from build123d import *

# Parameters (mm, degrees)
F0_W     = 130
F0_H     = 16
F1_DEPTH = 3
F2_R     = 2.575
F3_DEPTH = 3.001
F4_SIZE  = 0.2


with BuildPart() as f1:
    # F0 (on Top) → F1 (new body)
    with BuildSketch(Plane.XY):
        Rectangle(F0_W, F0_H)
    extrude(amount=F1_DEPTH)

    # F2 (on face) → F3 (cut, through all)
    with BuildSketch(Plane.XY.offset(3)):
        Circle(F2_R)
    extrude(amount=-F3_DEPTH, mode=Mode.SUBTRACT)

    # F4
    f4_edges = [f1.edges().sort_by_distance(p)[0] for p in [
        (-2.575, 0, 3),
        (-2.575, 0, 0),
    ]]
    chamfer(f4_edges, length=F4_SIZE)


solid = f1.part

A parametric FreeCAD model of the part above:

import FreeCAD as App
import Part
import Sketcher


def edges_at(feature, points):
    """Names of the edges that pass closest to the given points."""
    edges = feature.Shape.Edges
    near = lambda p: min(range(len(edges)), key=lambda i: edges[i].distToShape(Part.Vertex(*p))[0])
    return sorted({f"Edge{near(p) + 1}" for p in points})

doc = App.newDocument("Part")
body = doc.addObject("PartDesign::Body", "Body")

# Sketch on XY plane
sketch1 = doc.addObject("Sketcher::SketchObject", "Sketch")
body.addObject(sketch1)
sketch1.AttachmentSupport = (doc.XY_Plane, [""])
sketch1.MapMode = "FlatFace"
sketch1.addGeometry(Part.LineSegment(App.Vector(-65, 8, 0), App.Vector(-65, -8, 0)), False)
sketch1.addGeometry(Part.LineSegment(App.Vector(-65, -8, 0), App.Vector(65, -8, 0)), False)
sketch1.addGeometry(Part.LineSegment(App.Vector(65, -8, 0), App.Vector(65, 8, 0)), False)
sketch1.addGeometry(Part.LineSegment(App.Vector(65, 8, 0), App.Vector(-65, 8, 0)), False)
sketch1.addConstraint(Sketcher.Constraint("Coincident", 0, 2, 1, 1))
sketch1.addConstraint(Sketcher.Constraint("Coincident", 1, 2, 2, 1))
sketch1.addConstraint(Sketcher.Constraint("Coincident", 2, 2, 3, 1))
sketch1.addConstraint(Sketcher.Constraint("Coincident", 3, 2, 0, 1))
sketch1.addConstraint(Sketcher.Constraint("Vertical", 0))
sketch1.addConstraint(Sketcher.Constraint("Horizontal", 1))
sketch1.addConstraint(Sketcher.Constraint("Vertical", 2))
sketch1.addConstraint(Sketcher.Constraint("Horizontal", 3))
sketch1.addConstraint(Sketcher.Constraint("Symmetric", 0, 2, 2, 2, -1, 1))
sketch1.addConstraint(Sketcher.Constraint("DistanceX", 1, 1, 1, 2, 130.0))
sketch1.addConstraint(Sketcher.Constraint("DistanceY", 0, 2, 0, 1, 16.0))
pad1 = doc.addObject("PartDesign::Pad", "Pad")
body.addObject(pad1)
pad1.Profile = sketch1
pad1.Length = 3

# Sketch on XY plane
sketch2 = doc.addObject("Sketcher::SketchObject", "Sketch001")
body.addObject(sketch2)
sketch2.AttachmentSupport = (doc.XY_Plane, [""])
sketch2.MapMode = "FlatFace"
sketch2.AttachmentOffset = App.Placement(App.Vector(0, 0, 3), App.Rotation())
sketch2.addGeometry(Part.Circle(App.Vector(0, 0, 0), App.Vector(0, 0, 1), 2.575), False)
sketch2.addConstraint(Sketcher.Constraint("Coincident", 0, 3, -1, 1))
sketch2.addConstraint(Sketcher.Constraint("Diameter", 0, 5.15))
pocket1 = doc.addObject("PartDesign::Pocket", "Pocket")
body.addObject(pocket1)
pocket1.Profile = sketch2
pocket1.Type = "ThroughAll"
doc.recompute()

chamfer = doc.addObject("PartDesign::Chamfer", "Chamfer")
body.addObject(chamfer)
chamfer.Base = (pocket1, edges_at(pocket1, [(-2.575, 0, 3), (-2.575, 0, 0)]))
chamfer.Size = 0.2

doc.recompute()
